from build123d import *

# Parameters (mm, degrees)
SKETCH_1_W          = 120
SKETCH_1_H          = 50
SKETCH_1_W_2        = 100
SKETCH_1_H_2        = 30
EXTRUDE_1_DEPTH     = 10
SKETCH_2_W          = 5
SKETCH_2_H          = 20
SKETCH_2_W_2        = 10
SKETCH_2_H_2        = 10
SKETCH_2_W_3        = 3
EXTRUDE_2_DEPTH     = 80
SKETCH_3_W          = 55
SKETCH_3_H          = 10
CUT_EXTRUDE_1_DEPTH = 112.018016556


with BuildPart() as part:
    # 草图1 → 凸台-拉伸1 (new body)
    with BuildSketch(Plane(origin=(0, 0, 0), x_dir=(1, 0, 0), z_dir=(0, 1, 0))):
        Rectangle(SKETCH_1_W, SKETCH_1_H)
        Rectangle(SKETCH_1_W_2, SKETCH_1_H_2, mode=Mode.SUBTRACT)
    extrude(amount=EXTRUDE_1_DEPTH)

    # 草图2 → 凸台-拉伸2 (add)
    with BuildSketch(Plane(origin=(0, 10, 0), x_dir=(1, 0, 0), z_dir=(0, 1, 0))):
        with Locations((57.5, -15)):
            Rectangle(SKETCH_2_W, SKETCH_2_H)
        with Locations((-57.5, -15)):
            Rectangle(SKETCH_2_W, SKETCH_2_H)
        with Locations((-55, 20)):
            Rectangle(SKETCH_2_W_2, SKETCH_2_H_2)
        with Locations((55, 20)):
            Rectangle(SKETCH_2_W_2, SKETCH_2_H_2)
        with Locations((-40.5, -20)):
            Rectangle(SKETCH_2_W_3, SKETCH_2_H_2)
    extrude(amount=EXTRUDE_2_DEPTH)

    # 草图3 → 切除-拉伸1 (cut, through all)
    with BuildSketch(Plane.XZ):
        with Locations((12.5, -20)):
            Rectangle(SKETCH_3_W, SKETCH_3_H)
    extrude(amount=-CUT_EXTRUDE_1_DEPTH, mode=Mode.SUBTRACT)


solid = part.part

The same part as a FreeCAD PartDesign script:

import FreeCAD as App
import Part
import Sketcher
from FreeCAD import Vector


def add_polygon(sketch, points):
    """Adds a closed chain of lines whose ends are joined by coincident constraints."""
    first, n = sketch.GeometryCount, len(points)
    for a, b in zip(points, points[1:] + points[:1]):
        sketch.addGeometry(Part.LineSegment(App.Vector(*a, 0), App.Vector(*b, 0)), False)
    for i in range(n):
        sketch.addConstraint(Sketcher.Constraint("Coincident", first + i, 2, first + (i + 1) % n, 1))

doc = App.newDocument("Part")
body = doc.addObject("PartDesign::Body", "Body")

# Sketch on XZ plane
sketch1 = doc.addObject("Sketcher::SketchObject", "Sketch")
body.addObject(sketch1)
sketch1.AttachmentSupport = (doc.XZ_Plane, [""])
sketch1.MapMode = "FlatFace"
add_polygon(sketch1, [(-60, -25), (-60, 25), (60, 25), (60, -25)])  # lines 0-3
add_polygon(sketch1, [(50, 15), (-50, 15), (-50, -15), (50, -15)])  # lines 4-7
sketch1.addConstraint(Sketcher.Constraint("Vertical", 0))
sketch1.addConstraint(Sketcher.Constraint("Horizontal", 1))
sketch1.addConstraint(Sketcher.Constraint("Vertical", 2))
sketch1.addConstraint(Sketcher.Constraint("Horizontal", 3))
sketch1.addConstraint(Sketcher.Constraint("Horizontal", 4))
sketch1.addConstraint(Sketcher.Constraint("Vertical", 5))
sketch1.addConstraint(Sketcher.Constraint("Horizontal", 6))
sketch1.addConstraint(Sketcher.Constraint("Vertical", 7))
sketch1.addConstraint(Sketcher.Constraint("Symmetric", 0, 2, 2, 2, -1, 1))
sketch1.addConstraint(Sketcher.Constraint("Symmetric", 4, 2, 6, 2, -1, 1))
sketch1.addConstraint(Sketcher.Constraint("DistanceX", 1, 1, 1, 2, 120.0))
sketch1.addConstraint(Sketcher.Constraint("DistanceX", 4, 2, 4, 1, 100.0))
sketch1.addConstraint(Sketcher.Constraint("DistanceY", 0, 1, 0, 2, 50.0))
sketch1.addConstraint(Sketcher.Constraint("DistanceY", 5, 2, 5, 1, 30.0))
pad1 = doc.addObject("PartDesign::Pad", "Pad")
body.addObject(pad1)
pad1.Profile = sketch1
pad1.Length = 10
pad1.Reversed = True

# Sketch on XZ plane
sketch2 = doc.addObject("Sketcher::SketchObject", "Sketch001")
body.addObject(sketch2)
sketch2.AttachmentSupport = (doc.XZ_Plane, [""])
sketch2.MapMode = "FlatFace"
sketch2.AttachmentOffset = App.Placement(Vector(0, 0, -10), App.Rotation())
add_polygon(sketch2, [(55, 5), (55, 25), (60, 25), (60, 5)])  # lines 0-3
add_polygon(sketch2, [(-60, 5), (-60, 25), (-55, 25), (-55, 5)])  # lines 4-7
add_polygon(sketch2, [(-60, -25), (-60, -15), (-50, -15), (-50, -25)])  # lines 8-11
add_polygon(sketch2, [(50, -25), (50, -15), (60, -15), (60, -25)])  # lines 12-15
add_polygon(sketch2, [(-42, 15), (-42, 25), (-39, 25), (-39, 15)])  # lines 16-19
sketch2.addConstraint(Sketcher.Constraint("Vertical", 0))
sketch2.addConstraint(Sketcher.Constraint("Horizontal", 1))
sketch2.addConstraint(Sketcher.Constraint("Vertical", 2))
sketch2.addConstraint(Sketcher.Constraint("Horizontal", 3))
sketch2.addConstraint(Sketcher.Constraint("Vertical", 4))
sketch2.addConstraint(Sketcher.Constraint("Horizontal", 5))
sketch2.addConstraint(Sketcher.Constraint("Vertical", 6))
sketch2.addConstraint(Sketcher.Constraint("Horizontal", 7))
sketch2.addConstraint(Sketcher.Constraint("Vertical", 8))
sketch2.addConstraint(Sketcher.Constraint("Horizontal", 9))
sketch2.addConstraint(Sketcher.Constraint("Vertical", 10))
sketch2.addConstraint(Sketcher.Constraint("Horizontal", 11))
sketch2.addConstraint(Sketcher.Constraint("Vertical", 12))
sketch2.addConstraint(Sketcher.Constraint("Horizontal", 13))
sketch2.addConstraint(Sketcher.Constraint("Vertical", 14))
sketch2.addConstraint(Sketcher.Constraint("Horizontal", 15))
sketch2.addConstraint(Sketcher.Constraint("Vertical", 16))
sketch2.addConstraint(Sketcher.Constraint("Horizontal", 17))
sketch2.addConstraint(Sketcher.Constraint("Vertical", 18))
sketch2.addConstraint(Sketcher.Constraint("Horizontal", 19))
sketch2.addConstraint(Sketcher.Constraint("Symmetric", 1, 2, 11, 2, -1, 1))
sketch2.addConstraint(Sketcher.Constraint("Symmetric", 4, 2, 14, 2, -1, 1))
sketch2.addConstraint(Sketcher.Constraint("Symmetric", 1, 2, 4, 2, -2))
sketch2.addConstraint(Sketcher.Constraint("Symmetric", 3, 2, 6, 2, -2))
sketch2.addConstraint(Sketcher.Constraint("Symmetric", 9, 2, 12, 2, -2))
sketch2.addConstraint(Sketcher.Constraint("Horizontal", 5, 2, 16, 2))
sketch2.addConstraint(Sketcher.Constraint("Equal", 15, 8))
sketch2.addConstraint(Sketcher.Constraint("Equal", 14, 16))
sketch2.addConstraint(Sketcher.Constraint("DistanceX", 1, 1, 1, 2, 5.0))
sketch2.addConstraint(Sketcher.Constraint("DistanceX", 9, 1, 9, 2, 10.0))
sketch2.addConstraint(Sketcher.Constraint("DistanceX", 17, 1, 17, 2, 3.0))
sketch2.addConstraint(Sketcher.Constraint("DistanceY", 0, 1, 0, 2, 20.0))
sketch2.addConstraint(Sketcher.Constraint("DistanceX", -1, 1, 0, 2, 55.0))
sketch2.addConstraint(Sketcher.Constraint("DistanceY", -1, 1, 0, 2, 25.0))
sketch2.addConstraint(Sketcher.Constraint("DistanceX", 16, 2, -1, 1, 42.0))
pad2 = doc.addObject("PartDesign::Pad", "Pad001")
body.addObject(pad2)
pad2.Profile = sketch2
pad2.Length = 80
pad2.Reversed = True

# Sketch on XZ plane
sketch3 = doc.addObject("Sketcher::SketchObject", "Sketch002")
body.addObject(sketch3)
sketch3.AttachmentSupport = (doc.XZ_Plane, [""])
sketch3.MapMode = "FlatFace"
add_polygon(sketch3, [(-15, -15), (-15, -25), (40, -25), (40, -15)])  # lines 0-3
sketch3.addConstraint(Sketcher.Constraint("Vertical", 0))
sketch3.addConstraint(Sketcher.Constraint("Horizontal", 1))
sketch3.addConstraint(Sketcher.Constraint("Vertical", 2))
sketch3.addConstraint(Sketcher.Constraint("Horizontal", 3))
sketch3.addConstraint(Sketcher.Constraint("DistanceX", 1, 1, 1, 2, 55.0))
sketch3.addConstraint(Sketcher.Constraint("DistanceY", 0, 2, 0, 1, 10.0))
sketch3.addConstraint(Sketcher.Constraint("DistanceX", 0, 2, -1, 1, 15.0))
sketch3.addConstraint(Sketcher.Constraint("DistanceY", 0, 2, -1, 1, 25.0))
pocket1 = doc.addObject("PartDesign::Pocket", "Pocket")
body.addObject(pocket1)
pocket1.Profile = sketch3
pocket1.Type = "ThroughAll"

doc.recompute()
